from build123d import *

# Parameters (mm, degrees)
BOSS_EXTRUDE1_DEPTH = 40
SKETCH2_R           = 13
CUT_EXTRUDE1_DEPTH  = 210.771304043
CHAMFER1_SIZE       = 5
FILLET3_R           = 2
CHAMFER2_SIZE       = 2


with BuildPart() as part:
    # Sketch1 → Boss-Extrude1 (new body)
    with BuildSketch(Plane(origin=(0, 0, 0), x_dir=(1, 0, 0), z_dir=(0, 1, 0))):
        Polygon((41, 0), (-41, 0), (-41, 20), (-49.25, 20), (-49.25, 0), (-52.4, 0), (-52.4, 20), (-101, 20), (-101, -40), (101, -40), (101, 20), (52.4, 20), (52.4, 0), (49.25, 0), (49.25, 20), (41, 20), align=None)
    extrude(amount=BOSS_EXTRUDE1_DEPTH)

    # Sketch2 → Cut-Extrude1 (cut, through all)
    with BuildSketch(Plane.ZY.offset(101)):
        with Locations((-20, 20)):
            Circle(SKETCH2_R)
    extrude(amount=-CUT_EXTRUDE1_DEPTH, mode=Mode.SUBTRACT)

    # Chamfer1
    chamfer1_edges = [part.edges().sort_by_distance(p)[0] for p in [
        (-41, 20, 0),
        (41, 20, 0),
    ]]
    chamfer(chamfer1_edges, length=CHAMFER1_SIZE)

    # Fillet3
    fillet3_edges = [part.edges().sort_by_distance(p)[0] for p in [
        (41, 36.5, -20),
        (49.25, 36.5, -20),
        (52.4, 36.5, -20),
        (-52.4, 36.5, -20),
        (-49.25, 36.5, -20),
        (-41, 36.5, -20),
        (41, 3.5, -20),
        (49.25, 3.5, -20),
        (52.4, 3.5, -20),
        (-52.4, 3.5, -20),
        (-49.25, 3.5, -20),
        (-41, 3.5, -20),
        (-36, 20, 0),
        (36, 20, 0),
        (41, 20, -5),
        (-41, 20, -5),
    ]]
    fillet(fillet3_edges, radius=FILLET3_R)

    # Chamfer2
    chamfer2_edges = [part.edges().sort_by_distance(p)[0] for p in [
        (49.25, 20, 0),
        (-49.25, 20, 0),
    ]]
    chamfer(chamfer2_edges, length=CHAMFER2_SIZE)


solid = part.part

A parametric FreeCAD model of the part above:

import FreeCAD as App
import Part
import Sketcher
Q = App.Units.Quantity


def edges_at(feature, points):
    """Names of the edges that pass closest to the given points."""
    edges = feature.Shape.Edges
    near = lambda p: min(range(len(edges)), key=lambda i: edges[i].distToShape(Part.Vertex(*p))[0])
    return sorted({f"Edge{near(p) + 1}" for p in points})


def add_polygon(sketch, points):
    """Adds a closed chain of lines whose ends are joined by coincident constraints."""
    first, n = sketch.GeometryCount, len(points)
    for a, b in zip(points, points[1:] + points[:1]):
        sketch.addGeometry(Part.LineSegment(App.Vector(*a, 0), App.Vector(*b, 0)), False)
    for i in range(n):
        sketch.addConstraint(Sketcher.Constraint("Coincident", first + i, 2, first + (i + 1) % n, 1))

doc = App.newDocument("Part")
body = doc.addObject("PartDesign::Body", "Body")

# Sketch on XZ plane
sketch1 = doc.addObject("Sketcher::SketchObject", "Sketch")
body.addObject(sketch1)
sketch1.AttachmentSupport = (doc.XZ_Plane, [""])
sketch1.MapMode = "FlatFace"
add_polygon(sketch1, [(41, 0), (-41, 0), (-41, -20), (-49.2, -20), (-49.2, 0), (-52.4, 0), (-52.4, -20), (-101, -20), (-101, 40), (101, 40), (101, -20), (52.4, -20), (52.4, 0), (49.2, 0), (49.2, -20), (41, -20)])  # lines 0-15
sketch1.addConstraint([
    Sketcher.Constraint("Horizontal", 0),
    Sketcher.Constraint("Vertical", 1),
    Sketcher.Constraint("Horizontal", 2),
    Sketcher.Constraint("Vertical", 3),
    Sketcher.Constraint("Horizontal", 4),
    Sketcher.Constraint("Vertical", 5),
    Sketcher.Constraint("Horizontal", 6),
    Sketcher.Constraint("Vertical", 7),
    Sketcher.Constraint("Horizontal", 8),
    Sketcher.Constraint("Vertical", 9),
    Sketcher.Constraint("Horizontal", 10),
    Sketcher.Constraint("Vertical", 11),
    Sketcher.Constraint("Horizontal", 12),
    Sketcher.Constraint("Vertical", 13),
    Sketcher.Constraint("Horizontal", 14),
    Sketcher.Constraint("Vertical", 15),
    Sketcher.Constraint("Symmetric", 4, 2, 11, 2, -1, 1),
    Sketcher.Constraint("Symmetric", 0, 2, 15, 2, -1, 1),
    Sketcher.Constraint("Symmetric", 6, 2, 9, 2, -2),
    Sketcher.Constraint("Symmetric", 3, 2, 12, 2, -2),
    Sketcher.Constraint("Horizontal", 2, 2, 5, 2),
    Sketcher.Constraint("Horizontal", 10, 2, 13, 2),
    Sketcher.Constraint("DistanceX", 0, 2, 0, 1, Q("82 mm")),
    Sketcher.Constraint("DistanceX", 8, 1, 8, 2, Q("202 mm")),
    Sketcher.Constraint("DistanceY", 1, 2, 1, 1, Q("20 mm")),
    Sketcher.Constraint("DistanceY", 7, 1, 7, 2, Q("60 mm")),
    Sketcher.Constraint("DistanceX", 6, 2, 6, 1, Q("48.6 mm")),
    Sketcher.Constraint("DistanceX", 2, 2, 2, 1, Q("8.25 mm")),
])
pad1 = doc.addObject("PartDesign::Pad", "Pad")
body.addObject(pad1)
pad1.Profile = sketch1
pad1.Length = 40
pad1.Reversed = True

# Sketch on YZ plane
sketch2 = doc.addObject("Sketcher::SketchObject", "Sketch001")
body.addObject(sketch2)
sketch2.AttachmentSupport = (doc.YZ_Plane, [""])
sketch2.MapMode = "FlatFace"
sketch2.AttachmentOffset = App.Placement(App.Vector(0, 0, -101), App.Rotation())
sketch2.addGeometry(Part.Circle(App.Vector(20, -20, 0), App.Vector(0, 0, 1), 13), False)
sketch2.addConstraint([
    Sketcher.Constraint("Diameter", 0, Q("26 mm")),
    Sketcher.Constraint("DistanceX", -1, 1, 0, 3, Q("20 mm")),
    Sketcher.Constraint("DistanceY", 0, 3, -1, 1, Q("20 mm")),
])
pocket1 = doc.addObject("PartDesign::Pocket", "Pocket")
body.addObject(pocket1)
pocket1.Profile = sketch2
pocket1.Type = "ThroughAll"
pocket1.Reversed = True
doc.recompute()

chamfer = doc.addObject("PartDesign::Chamfer", "Chamfer")
body.addObject(chamfer)
chamfer.Base = (pocket1, edges_at(pocket1, [(-41, 20, 0), (41, 20, 0)]))
chamfer.Size = 5
doc.recompute()

fillet = doc.addObject("PartDesign::Fillet", "Fillet")
body.addObject(fillet)
fillet.Base = (chamfer, edges_at(chamfer, [
    (41, 36.5, -20),
    (49.25, 36.5, -20),
    (52.4, 36.5, -20),
    (-52.4, 36.5, -20),
    (-49.25, 36.5, -20),
    (-41, 36.5, -20),
    (41, 3.5, -20),
    (49.25, 3.5, -20),
    (52.4, 3.5, -20),
    (-52.4, 3.5, -20),
    (-49.25, 3.5, -20),
    (-41, 3.5, -20),
    (-36, 20, 0),
    (36, 20, 0),
    (41, 20, -5),
    (-41, 20, -5),
]))
fillet.Radius = 2
doc.recompute()

chamfer2 = doc.addObject("PartDesign::Chamfer", "Chamfer001")
body.addObject(chamfer2)
chamfer2.Base = (fillet, edges_at(fillet, [(49.25, 20, 0), (-49.25, 20, 0)]))
chamfer2.Size = 2

doc.recompute()
